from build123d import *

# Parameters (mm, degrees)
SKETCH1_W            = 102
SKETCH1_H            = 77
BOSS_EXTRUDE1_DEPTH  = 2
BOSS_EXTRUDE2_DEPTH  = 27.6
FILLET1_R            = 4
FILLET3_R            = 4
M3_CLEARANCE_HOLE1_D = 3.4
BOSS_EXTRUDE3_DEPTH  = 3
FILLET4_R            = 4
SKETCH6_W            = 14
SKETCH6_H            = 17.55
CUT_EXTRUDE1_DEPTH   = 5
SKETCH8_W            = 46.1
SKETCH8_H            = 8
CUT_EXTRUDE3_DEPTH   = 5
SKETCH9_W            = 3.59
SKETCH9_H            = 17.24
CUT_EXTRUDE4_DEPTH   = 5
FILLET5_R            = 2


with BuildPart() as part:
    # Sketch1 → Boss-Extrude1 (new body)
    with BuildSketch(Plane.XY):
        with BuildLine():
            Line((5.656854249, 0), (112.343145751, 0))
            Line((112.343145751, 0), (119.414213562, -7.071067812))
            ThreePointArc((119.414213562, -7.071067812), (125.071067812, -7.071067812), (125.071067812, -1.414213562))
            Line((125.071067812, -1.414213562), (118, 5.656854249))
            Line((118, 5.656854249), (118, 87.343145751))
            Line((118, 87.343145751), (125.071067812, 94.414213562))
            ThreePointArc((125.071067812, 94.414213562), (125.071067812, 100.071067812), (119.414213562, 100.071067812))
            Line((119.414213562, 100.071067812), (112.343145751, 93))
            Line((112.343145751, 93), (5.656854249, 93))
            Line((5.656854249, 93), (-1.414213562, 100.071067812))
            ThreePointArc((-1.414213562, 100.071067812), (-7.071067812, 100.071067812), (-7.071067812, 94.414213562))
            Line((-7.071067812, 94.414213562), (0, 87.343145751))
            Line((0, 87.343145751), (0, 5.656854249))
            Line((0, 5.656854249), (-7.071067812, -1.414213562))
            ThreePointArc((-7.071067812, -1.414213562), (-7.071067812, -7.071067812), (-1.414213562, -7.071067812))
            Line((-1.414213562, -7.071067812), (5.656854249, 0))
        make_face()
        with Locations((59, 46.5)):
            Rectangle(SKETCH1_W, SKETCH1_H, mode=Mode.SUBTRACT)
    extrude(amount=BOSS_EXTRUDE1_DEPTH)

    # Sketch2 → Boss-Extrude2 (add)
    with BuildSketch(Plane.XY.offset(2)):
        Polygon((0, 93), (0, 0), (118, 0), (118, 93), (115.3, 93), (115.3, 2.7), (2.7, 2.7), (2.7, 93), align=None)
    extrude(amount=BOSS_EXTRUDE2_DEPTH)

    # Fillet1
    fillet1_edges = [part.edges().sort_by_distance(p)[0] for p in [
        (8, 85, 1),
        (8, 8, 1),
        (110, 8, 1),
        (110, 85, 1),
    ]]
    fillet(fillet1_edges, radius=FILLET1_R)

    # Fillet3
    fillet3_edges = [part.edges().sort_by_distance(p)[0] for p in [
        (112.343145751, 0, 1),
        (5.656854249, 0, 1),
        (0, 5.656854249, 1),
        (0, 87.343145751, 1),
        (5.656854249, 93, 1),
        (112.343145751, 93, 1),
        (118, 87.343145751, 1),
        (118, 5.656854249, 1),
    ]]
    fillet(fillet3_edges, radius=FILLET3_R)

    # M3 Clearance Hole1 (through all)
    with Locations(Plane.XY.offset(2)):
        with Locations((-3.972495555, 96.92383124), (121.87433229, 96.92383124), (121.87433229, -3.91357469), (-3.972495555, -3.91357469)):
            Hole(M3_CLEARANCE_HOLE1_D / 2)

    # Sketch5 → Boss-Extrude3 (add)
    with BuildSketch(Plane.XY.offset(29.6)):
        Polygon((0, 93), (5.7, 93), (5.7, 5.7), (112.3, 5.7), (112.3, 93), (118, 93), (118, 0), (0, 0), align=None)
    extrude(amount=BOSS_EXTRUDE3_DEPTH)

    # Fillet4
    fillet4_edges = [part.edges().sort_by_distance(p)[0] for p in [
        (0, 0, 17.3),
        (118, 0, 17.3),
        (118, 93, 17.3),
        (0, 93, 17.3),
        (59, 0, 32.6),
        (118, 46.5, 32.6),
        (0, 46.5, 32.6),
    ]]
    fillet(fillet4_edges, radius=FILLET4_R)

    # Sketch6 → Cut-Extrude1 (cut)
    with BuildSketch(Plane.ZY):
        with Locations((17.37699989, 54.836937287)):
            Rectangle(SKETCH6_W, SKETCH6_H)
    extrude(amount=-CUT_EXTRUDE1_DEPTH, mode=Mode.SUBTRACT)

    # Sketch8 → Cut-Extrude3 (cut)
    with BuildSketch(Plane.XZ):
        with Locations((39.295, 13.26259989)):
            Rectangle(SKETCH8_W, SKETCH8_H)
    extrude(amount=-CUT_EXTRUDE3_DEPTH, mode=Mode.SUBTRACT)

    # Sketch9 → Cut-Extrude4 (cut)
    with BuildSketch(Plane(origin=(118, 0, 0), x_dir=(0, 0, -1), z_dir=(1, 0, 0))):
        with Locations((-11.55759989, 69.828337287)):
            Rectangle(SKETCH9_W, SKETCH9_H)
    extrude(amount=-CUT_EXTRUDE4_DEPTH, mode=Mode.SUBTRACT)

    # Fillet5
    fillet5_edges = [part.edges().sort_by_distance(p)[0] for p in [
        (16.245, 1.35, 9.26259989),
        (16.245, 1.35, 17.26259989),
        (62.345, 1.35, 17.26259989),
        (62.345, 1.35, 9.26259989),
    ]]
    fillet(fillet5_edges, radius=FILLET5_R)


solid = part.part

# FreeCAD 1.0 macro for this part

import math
import FreeCAD as App
import Part
import Sketcher

V = App.Vector
Q = App.Units.Quantity


def edges_at(feature, points):
    """Names of the edges that pass closest to the given points."""
    edges = feature.Shape.Edges
    near = lambda p: min(range(len(edges)), key=lambda i: edges[i].distToShape(Part.Vertex(*p))[0])
    return sorted({f"Edge{near(p) + 1}" for p in points})

doc = App.newDocument("Part")
body = doc.addObject("PartDesign::Body", "Body")

sketch1 = body.newObject("Sketcher::SketchObject", "Sketch")
sketch1.AttachmentSupport = (doc.getObject("XY_Plane"), [""])
sketch1.MapMode = "FlatFace"
sketch1.addGeometry([
    Part.LineSegment(V(5.656854, 0, 0), V(112.343146, 0, 0)),
    Part.LineSegment(V(112.343146, 0, 0), V(119.414214, -7.071068, 0)),
    Part.ArcOfCircle(Part.Circle(V(122.242641, -4.242641, 0), V(0, 0, 1), 4), math.radians(-135), math.radians(45)),
    Part.LineSegment(V(125.071068, -1.414214, 0), V(118, 5.656854, 0)),
    Part.LineSegment(V(118, 5.656854, 0), V(118, 87.343146, 0)),
    Part.LineSegment(V(118, 87.343146, 0), V(125.071068, 94.414214, 0)),
    Part.ArcOfCircle(Part.Circle(V(122.242641, 97.242641, 0), V(0, 0, 1), 4), math.radians(-45), math.radians(135)),
    Part.LineSegment(V(119.414214, 100.071068, 0), V(112.343146, 93, 0)),
    Part.LineSegment(V(112.343146, 93, 0), V(5.656854, 93, 0)),
    Part.LineSegment(V(5.656854, 93, 0), V(-1.414214, 100.071068, 0)),
    Part.ArcOfCircle(Part.Circle(V(-4.242641, 97.242641, 0), V(0, 0, 1), 4), math.radians(45), math.radians(225)),
    Part.LineSegment(V(-7.071068, 94.414214, 0), V(0, 87.343146, 0)),
    Part.LineSegment(V(0, 87.343146, 0), V(0, 5.656854, 0)),
    Part.LineSegment(V(0, 5.656854, 0), V(-7.071068, -1.414214, 0)),
    Part.ArcOfCircle(Part.Circle(V(-4.242641, -4.242641, 0), V(0, 0, 1), 4), math.radians(135), math.radians(315)),
    Part.LineSegment(V(-1.414214, -7.071068, 0), V(5.656854, 0, 0)),
    Part.LineSegment(V(110, 8, 0), V(8, 8, 0)),
    Part.LineSegment(V(8, 8, 0), V(8, 85, 0)),
    Part.LineSegment(V(8, 85, 0), V(110, 85, 0)),
    Part.LineSegment(V(110, 85, 0), V(110, 8, 0)),
], False)
sketch1.addConstraint([
    Sketcher.Constraint("Coincident", 0, 2, 1, 1),
    Sketcher.Constraint("Tangent", 1, 2, 2, 1),
    Sketcher.Constraint("Tangent", 2, 2, 3, 1),
    Sketcher.Constraint("Coincident", 3, 2, 4, 1),
    Sketcher.Constraint("Coincident", 4, 2, 5, 1),
    Sketcher.Constraint("Tangent", 5, 2, 6, 1),
    Sketcher.Constraint("Tangent", 6, 2, 7, 1),
    Sketcher.Constraint("Coincident", 7, 2, 8, 1),
    Sketcher.Constraint("Coincident", 8, 2, 9, 1),
    Sketcher.Constraint("Tangent", 9, 2, 10, 1),
    Sketcher.Constraint("Tangent", 10, 2, 11, 1),
    Sketcher.Constraint("Coincident", 11, 2, 12, 1),
    Sketcher.Constraint("Coincident", 12, 2, 13, 1),
    Sketcher.Constraint("Tangent", 13, 2, 14, 1),
    Sketcher.Constraint("Tangent", 14, 2, 15, 1),
    Sketcher.Constraint("Coincident", 15, 2, 0, 1),
    Sketcher.Constraint("Coincident", 16, 2, 17, 1),
    Sketcher.Constraint("Coincident", 17, 2, 18, 1),
    Sketcher.Constraint("Coincident", 18, 2, 19, 1),
    Sketcher.Constraint("Coincident", 19, 2, 16, 1),
    Sketcher.Constraint("Horizontal", 0),
    Sketcher.Constraint("Vertical", 4),
    Sketcher.Constraint("Horizontal", 8),
    Sketcher.Constraint("Vertical", 12),
    Sketcher.Constraint("Horizontal", 16),
    Sketcher.Constraint("Vertical", 17),
    Sketcher.Constraint("Horizontal", 18),
    Sketcher.Constraint("Vertical", 19),
    Sketcher.Constraint("Equal", 2, 6),
    Sketcher.Constraint("Equal", 6, 10),
    Sketcher.Constraint("Equal", 10, 14),
    Sketcher.Constraint("PointOnObject", 0, 2, -1),
    Sketcher.Constraint("PointOnObject", 11, 2, -2),
    Sketcher.Constraint("Parallel", 1, 3),
    Sketcher.Constraint("Perpendicular", 3, 5),
    Sketcher.Constraint("Parallel", 5, 7),
    Sketcher.Constraint("Perpendicular", 7, 9),
    Sketcher.Constraint("Parallel", 9, 11),
    Sketcher.Constraint("Perpendicular", 11, 13),
    Sketcher.Constraint("Parallel", 13, 15),
    Sketcher.Constraint("Horizontal", 6, 3, 10, 3),
    Sketcher.Constraint("Horizontal", 2, 3, 14, 3),
    Sketcher.Constraint("Horizontal", 6, 2, 9, 2),
    Sketcher.Constraint("Horizontal", 4, 2, 11, 2),
    Sketcher.Constraint("Horizontal", 3, 2, 12, 2),
    Sketcher.Constraint("Vertical", 2, 3, 6, 3),
    Sketcher.Constraint("Vertical", 0, 2, 7, 2),
    Sketcher.Constraint("Equal", 1, 3),
    Sketcher.Constraint("Radius", 2, Q("4 mm")),
    Sketcher.Constraint("DistanceX", 16, 2, 16, 1, Q("102 mm")),
    Sketcher.Constraint("DistanceY", 17, 1, 17, 2, Q("77 mm")),
    Sketcher.Constraint("Distance", 1, Q("10 mm")),
    Sketcher.Constraint("DistanceX", -1, 1, 3, 2, Q("118 mm")),
    Sketcher.Constraint("DistanceY", -1, 1, 7, 2, Q("93 mm")),
    Sketcher.Constraint("DistanceX", -1, 1, 16, 2, Q("8 mm")),
    Sketcher.Constraint("DistanceY", -1, 1, 16, 2, Q("8 mm")),
])
pad1 = body.newObject("PartDesign::Pad", "Pad")
pad1.Profile = sketch1
pad1.Length = 2

sketch2 = body.newObject("Sketcher::SketchObject", "Sketch001")
sketch2.AttachmentSupport = (doc.getObject("XY_Plane"), [""])
sketch2.MapMode = "FlatFace"
sketch2.AttachmentOffset = App.Placement(V(0, 0, 2), App.Rotation())
sketch2.addGeometry([
    Part.LineSegment(V(0, 93, 0), V(0, 0, 0)),
    Part.LineSegment(V(0, 0, 0), V(118, 0, 0)),
    Part.LineSegment(V(118, 0, 0), V(118, 93, 0)),
    Part.LineSegment(V(118, 93, 0), V(115.3, 93, 0)),
    Part.LineSegment(V(115.3, 93, 0), V(115.3, 2.7, 0)),
    Part.LineSegment(V(115.3, 2.7, 0), V(2.7, 2.7, 0)),
    Part.LineSegment(V(2.7, 2.7, 0), V(2.7, 93, 0)),
    Part.LineSegment(V(2.7, 93, 0), V(0, 93, 0)),
], False)
sketch2.addConstraint([
    Sketcher.Constraint("Coincident", 0, 2, 1, 1),
    Sketcher.Constraint("Coincident", 1, 2, 2, 1),
    Sketcher.Constraint("Coincident", 2, 2, 3, 1),
    Sketcher.Constraint("Coincident", 3, 2, 4, 1),
    Sketcher.Constraint("Coincident", 4, 2, 5, 1),
    Sketcher.Constraint("Coincident", 5, 2, 6, 1),
    Sketcher.Constraint("Coincident", 6, 2, 7, 1),
    Sketcher.Constraint("Coincident", 7, 2, 0, 1),
    Sketcher.Constraint("Vertical", 0),
    Sketcher.Constraint("Horizontal", 1),
    Sketcher.Constraint("Vertical", 2),
    Sketcher.Constraint("Horizontal", 3),
    Sketcher.Constraint("Vertical", 4),
    Sketcher.Constraint("Horizontal", 5),
    Sketcher.Constraint("Vertical", 6),
    Sketcher.Constraint("Horizontal", 7),
    Sketcher.Constraint("Coincident", 0, 2, -1, 1),
    Sketcher.Constraint("Horizontal", 3, 2, 6, 2),
    Sketcher.Constraint("Equal", 3, 7),
    Sketcher.Constraint("DistanceX", 1, 1, 1, 2, Q("118 mm")),
    Sketcher.Constraint("DistanceY", 0, 2, 0, 1, Q("93 mm")),
    Sketcher.Constraint("DistanceX", 3, 2, 3, 1, Q("2.7 mm")),
    Sketcher.Constraint("DistanceY", 4, 2, 4, 1, Q("90.3 mm")),
])
pad2 = body.newObject("PartDesign::Pad", "Pad001")
pad2.Profile = sketch2
pad2.Length = 27.6
doc.recompute()

fillet = body.newObject("PartDesign::Fillet", "Fillet")
fillet.Base = (pad2, edges_at(pad2, [
    (8, 85, 1),
    (8, 8, 1),
    (110, 8, 1),
    (110, 85, 1),
]))
fillet.Radius = 4
doc.recompute()

fillet2 = body.newObject("PartDesign::Fillet", "Fillet001")
fillet2.Base = (fillet, edges_at(fillet, [
    (112.343, 0, 1),
    (5.657, 0, 1),
    (0, 5.657, 1),
    (0, 87.343, 1),
    (5.657, 93, 1),
    (112.343, 93, 1),
    (118, 87.343, 1),
    (118, 5.657, 1),
]))
fillet2.Radius = 4

sketch3 = body.newObject("Sketcher::SketchObject", "Sketch002")
sketch3.AttachmentSupport = (doc.getObject("XY_Plane"), [""])
sketch3.MapMode = "FlatFace"
sketch3.AttachmentOffset = App.Placement(V(0, 0, 2), App.Rotation())
sketch3.addGeometry([
    Part.Circle(V(-3.972496, 96.923831, 0), V(0, 0, 1), 1.7),
    Part.Circle(V(121.874332, 96.923831, 0), V(0, 0, 1), 1.7),
    Part.Circle(V(121.874332, -3.913575, 0), V(0, 0, 1), 1.7),
    Part.Circle(V(-3.972496, -3.913575, 0), V(0, 0, 1), 1.7),
], False)
sketch3.addConstraint([
    Sketcher.Constraint("Equal", 0, 1),
    Sketcher.Constraint("Equal", 1, 2),
    Sketcher.Constraint("Equal", 2, 3),
    Sketcher.Constraint("Horizontal", 0, 3, 1, 3),
    Sketcher.Constraint("Horizontal", 2, 3, 3, 3),
    Sketcher.Constraint("Vertical", 1, 3, 2, 3),
    Sketcher.Constraint("Vertical", 0, 3, 3, 3),
    Sketcher.Constraint("Diameter", 0, Q("3.4 mm")),
    Sketcher.Constraint("DistanceY", -1, 1, 0, 3, Q("96.923831 mm")),
    Sketcher.Constraint("DistanceX", 0, 3, -1, 1, Q("3.972496 mm")),
    Sketcher.Constraint("DistanceX", -1, 1, 1, 3, Q("121.874332 mm")),
    Sketcher.Constraint("DistanceY", 2, 3, -1, 1, Q("3.913575 mm")),
])
doc.recompute()
hole = body.newObject("PartDesign::Hole", "Hole")
hole.Profile = sketch3
hole.ThreadType = "None"
hole.Diameter = 3.4
hole.DepthType = "ThroughAll"

sketch4 = body.newObject("Sketcher::SketchObject", "Sketch003")
sketch4.AttachmentSupport = (doc.getObject("XY_Plane"), [""])
sketch4.MapMode = "FlatFace"
sketch4.AttachmentOffset = App.Placement(V(0, 0, 29.6), App.Rotation())
sketch4.addGeometry([
    Part.LineSegment(V(5.7, 93, 0), V(0, 93, 0)),
    Part.LineSegment(V(0, 93, 0), V(0, 0, 0)),
    Part.LineSegment(V(0, 0, 0), V(118, 0, 0)),
    Part.LineSegment(V(118, 0, 0), V(118, 93, 0)),
    Part.LineSegment(V(118, 93, 0), V(112.3, 93, 0)),
    Part.LineSegment(V(112.3, 93, 0), V(112.3, 5.7, 0)),
    Part.LineSegment(V(112.3, 5.7, 0), V(5.7, 5.7, 0)),
    Part.LineSegment(V(5.7, 5.7, 0), V(5.7, 93, 0)),
], False)
sketch4.addConstraint([
    Sketcher.Constraint("Coincident", 0, 2, 1, 1),
    Sketcher.Constraint("Coincident", 1, 2, 2, 1),
    Sketcher.Constraint("Coincident", 2, 2, 3, 1),
    Sketcher.Constraint("Coincident", 3, 2, 4, 1),
    Sketcher.Constraint("Coincident", 4, 2, 5, 1),
    Sketcher.Constraint("Coincident", 5, 2, 6, 1),
    Sketcher.Constraint("Coincident", 6, 2, 7, 1),
    Sketcher.Constraint("Coincident", 7, 2, 0, 1),
    Sketcher.Constraint("Horizontal", 0),
    Sketcher.Constraint("Vertical", 1),
    Sketcher.Constraint("Horizontal", 2),
    Sketcher.Constraint("Vertical", 3),
    Sketcher.Constraint("Horizontal", 4),
    Sketcher.Constraint("Vertical", 5),
    Sketcher.Constraint("Horizontal", 6),
    Sketcher.Constraint("Vertical", 7),
    Sketcher.Constraint("Coincident", 1, 2, -1, 1),
    Sketcher.Constraint("Horizontal", 0, 2, 3, 2),
    Sketcher.Constraint("Equal", 0, 4),
    Sketcher.Constraint("DistanceX", 2, 1, 2, 2, Q("118 mm")),
    Sketcher.Constraint("DistanceY", 1, 2, 1, 1, Q("93 mm")),
    Sketcher.Constraint("DistanceX", 0, 2, 0, 1, Q("5.7 mm")),
    Sketcher.Constraint("DistanceY", 5, 2, 5, 1, Q("87.3 mm")),
])
pad3 = body.newObject("PartDesign::Pad", "Pad002")
pad3.Profile = sketch4
pad3.Length = 3
doc.recompute()

fillet3 = body.newObject("PartDesign::Fillet", "Fillet002")
fillet3.Base = (pad3, edges_at(pad3, [
    (0, 0, 17.3),
    (118, 0, 17.3),
    (118, 93, 17.3),
    (0, 93, 17.3),
    (59, 0, 32.6),
    (118, 46.5, 32.6),
    (0, 46.5, 32.6),
]))
fillet3.Radius = 4

sketch5 = body.newObject("Sketcher::SketchObject", "Sketch004")
sketch5.AttachmentSupport = (doc.getObject("YZ_Plane"), [""])
sketch5.MapMode = "FlatFace"
sketch5.addGeometry([
    Part.LineSegment(V(63.611937, 10.377, 0), V(46.061937, 10.377, 0)),
    Part.LineSegment(V(46.061937, 10.377, 0), V(46.061937, 24.377, 0)),
    Part.LineSegment(V(46.061937, 24.377, 0), V(63.611937, 24.377, 0)),
    Part.LineSegment(V(63.611937, 24.377, 0), V(63.611937, 10.377, 0)),
], False)
sketch5.addConstraint([
    Sketcher.Constraint("Coincident", 0, 2, 1, 1),
    Sketcher.Constraint("Coincident", 1, 2, 2, 1),
    Sketcher.Constraint("Coincident", 2, 2, 3, 1),
    Sketcher.Constraint("Coincident", 3, 2, 0, 1),
    Sketcher.Constraint("Horizontal", 0),
    Sketcher.Constraint("Vertical", 1),
    Sketcher.Constraint("Horizontal", 2),
    Sketcher.Constraint("Vertical", 3),
    Sketcher.Constraint("DistanceY", 1, 1, 1, 2, Q("14 mm")),
    Sketcher.Constraint("DistanceX", 0, 2, 0, 1, Q("17.55 mm")),
    Sketcher.Constraint("DistanceY", -1, 1, 0, 2, Q("10.377 mm")),
    Sketcher.Constraint("DistanceX", -1, 1, 0, 2, Q("46.061937 mm")),
])
pocket1 = body.newObject("PartDesign::Pocket", "Pocket")
pocket1.Profile = sketch5
pocket1.Length = 5
pocket1.Reversed = True

sketch6 = body.newObject("Sketcher::SketchObject", "Sketch005")
sketch6.AttachmentSupport = (doc.getObject("XZ_Plane"), [""])
sketch6.MapMode = "FlatFace"
sketch6.addGeometry([
    Part.LineSegment(V(16.245, 17.2626, 0), V(16.245, 9.2626, 0)),
    Part.LineSegment(V(16.245, 9.2626, 0), V(62.345, 9.2626, 0)),
    Part.LineSegment(V(62.345, 9.2626, 0), V(62.345, 17.2626, 0)),
    Part.LineSegment(V(62.345, 17.2626, 0), V(16.245, 17.2626, 0)),
], False)
sketch6.addConstraint([
    Sketcher.Constraint("Coincident", 0, 2, 1, 1),
    Sketcher.Constraint("Coincident", 1, 2, 2, 1),
    Sketcher.Constraint("Coincident", 2, 2, 3, 1),
    Sketcher.Constraint("Coincident", 3, 2, 0, 1),
    Sketcher.Constraint("Vertical", 0),
    Sketcher.Constraint("Horizontal", 1),
    Sketcher.Constraint("Vertical", 2),
    Sketcher.Constraint("Horizontal", 3),
    Sketcher.Constraint("DistanceY", 0, 2, 0, 1, Q("8 mm")),
    Sketcher.Constraint("DistanceX", 1, 1, 1, 2, Q("46.1 mm")),
    Sketcher.Constraint("DistanceX", -1, 1, 0, 2, Q("16.245 mm")),
    Sketcher.Constraint("DistanceY", -1, 1, 0, 2, Q("9.2626 mm")),
])
pocket2 = body.newObject("PartDesign::Pocket", "Pocket001")
pocket2.Profile = sketch6
pocket2.Length = 5

sketch7 = body.newObject("Sketcher::SketchObject", "Sketch006")
sketch7.AttachmentSupport = (doc.getObject("YZ_Plane"), [""])
sketch7.MapMode = "FlatFace"
sketch7.AttachmentOffset = App.Placement(V(0, 0, 118), App.Rotation())
sketch7.addGeometry([
    Part.LineSegment(V(78.448337, 13.3526, 0), V(61.208337, 13.3526, 0)),
    Part.LineSegment(V(61.208337, 13.3526, 0), V(61.208337, 9.7626, 0)),
    Part.LineSegment(V(61.208337, 9.7626, 0), V(78.448337, 9.7626, 0)),
    Part.LineSegment(V(78.448337, 9.7626, 0), V(78.448337, 13.3526, 0)),
], False)
sketch7.addConstraint([
    Sketcher.Constraint("Coincident", 0, 2, 1, 1),
    Sketcher.Constraint("Coincident", 1, 2, 2, 1),
    Sketcher.Constraint("Coincident", 2, 2, 3, 1),
    Sketcher.Constraint("Coincident", 3, 2, 0, 1),
    Sketcher.Constraint("Horizontal", 0),
    Sketcher.Constraint("Vertical", 1),
    Sketcher.Constraint("Horizontal", 2),
    Sketcher.Constraint("Vertical", 3),
    Sketcher.Constraint("DistanceX", 0, 2, 0, 1, Q("17.24 mm")),
    Sketcher.Constraint("DistanceY", 1, 2, 1, 1, Q("3.59 mm")),
    Sketcher.Constraint("DistanceY", -1, 1, 0, 2, Q("13.3526 mm")),
    Sketcher.Constraint("DistanceX", -1, 1, 0, 2, Q("61.208337 mm")),
])
pocket3 = body.newObject("PartDesign::Pocket", "Pocket002")
pocket3.Profile = sketch7
pocket3.Length = 5
doc.recompute()

fillet4 = body.newObject("PartDesign::Fillet", "Fillet003")
fillet4.Base = (pocket3, edges_at(pocket3, [
    (16.245, 1.35, 9.263),
    (16.245, 1.35, 17.263),
    (62.345, 1.35, 17.263),
    (62.345, 1.35, 9.263),
]))
fillet4.Radius = 2

doc.recompute()
